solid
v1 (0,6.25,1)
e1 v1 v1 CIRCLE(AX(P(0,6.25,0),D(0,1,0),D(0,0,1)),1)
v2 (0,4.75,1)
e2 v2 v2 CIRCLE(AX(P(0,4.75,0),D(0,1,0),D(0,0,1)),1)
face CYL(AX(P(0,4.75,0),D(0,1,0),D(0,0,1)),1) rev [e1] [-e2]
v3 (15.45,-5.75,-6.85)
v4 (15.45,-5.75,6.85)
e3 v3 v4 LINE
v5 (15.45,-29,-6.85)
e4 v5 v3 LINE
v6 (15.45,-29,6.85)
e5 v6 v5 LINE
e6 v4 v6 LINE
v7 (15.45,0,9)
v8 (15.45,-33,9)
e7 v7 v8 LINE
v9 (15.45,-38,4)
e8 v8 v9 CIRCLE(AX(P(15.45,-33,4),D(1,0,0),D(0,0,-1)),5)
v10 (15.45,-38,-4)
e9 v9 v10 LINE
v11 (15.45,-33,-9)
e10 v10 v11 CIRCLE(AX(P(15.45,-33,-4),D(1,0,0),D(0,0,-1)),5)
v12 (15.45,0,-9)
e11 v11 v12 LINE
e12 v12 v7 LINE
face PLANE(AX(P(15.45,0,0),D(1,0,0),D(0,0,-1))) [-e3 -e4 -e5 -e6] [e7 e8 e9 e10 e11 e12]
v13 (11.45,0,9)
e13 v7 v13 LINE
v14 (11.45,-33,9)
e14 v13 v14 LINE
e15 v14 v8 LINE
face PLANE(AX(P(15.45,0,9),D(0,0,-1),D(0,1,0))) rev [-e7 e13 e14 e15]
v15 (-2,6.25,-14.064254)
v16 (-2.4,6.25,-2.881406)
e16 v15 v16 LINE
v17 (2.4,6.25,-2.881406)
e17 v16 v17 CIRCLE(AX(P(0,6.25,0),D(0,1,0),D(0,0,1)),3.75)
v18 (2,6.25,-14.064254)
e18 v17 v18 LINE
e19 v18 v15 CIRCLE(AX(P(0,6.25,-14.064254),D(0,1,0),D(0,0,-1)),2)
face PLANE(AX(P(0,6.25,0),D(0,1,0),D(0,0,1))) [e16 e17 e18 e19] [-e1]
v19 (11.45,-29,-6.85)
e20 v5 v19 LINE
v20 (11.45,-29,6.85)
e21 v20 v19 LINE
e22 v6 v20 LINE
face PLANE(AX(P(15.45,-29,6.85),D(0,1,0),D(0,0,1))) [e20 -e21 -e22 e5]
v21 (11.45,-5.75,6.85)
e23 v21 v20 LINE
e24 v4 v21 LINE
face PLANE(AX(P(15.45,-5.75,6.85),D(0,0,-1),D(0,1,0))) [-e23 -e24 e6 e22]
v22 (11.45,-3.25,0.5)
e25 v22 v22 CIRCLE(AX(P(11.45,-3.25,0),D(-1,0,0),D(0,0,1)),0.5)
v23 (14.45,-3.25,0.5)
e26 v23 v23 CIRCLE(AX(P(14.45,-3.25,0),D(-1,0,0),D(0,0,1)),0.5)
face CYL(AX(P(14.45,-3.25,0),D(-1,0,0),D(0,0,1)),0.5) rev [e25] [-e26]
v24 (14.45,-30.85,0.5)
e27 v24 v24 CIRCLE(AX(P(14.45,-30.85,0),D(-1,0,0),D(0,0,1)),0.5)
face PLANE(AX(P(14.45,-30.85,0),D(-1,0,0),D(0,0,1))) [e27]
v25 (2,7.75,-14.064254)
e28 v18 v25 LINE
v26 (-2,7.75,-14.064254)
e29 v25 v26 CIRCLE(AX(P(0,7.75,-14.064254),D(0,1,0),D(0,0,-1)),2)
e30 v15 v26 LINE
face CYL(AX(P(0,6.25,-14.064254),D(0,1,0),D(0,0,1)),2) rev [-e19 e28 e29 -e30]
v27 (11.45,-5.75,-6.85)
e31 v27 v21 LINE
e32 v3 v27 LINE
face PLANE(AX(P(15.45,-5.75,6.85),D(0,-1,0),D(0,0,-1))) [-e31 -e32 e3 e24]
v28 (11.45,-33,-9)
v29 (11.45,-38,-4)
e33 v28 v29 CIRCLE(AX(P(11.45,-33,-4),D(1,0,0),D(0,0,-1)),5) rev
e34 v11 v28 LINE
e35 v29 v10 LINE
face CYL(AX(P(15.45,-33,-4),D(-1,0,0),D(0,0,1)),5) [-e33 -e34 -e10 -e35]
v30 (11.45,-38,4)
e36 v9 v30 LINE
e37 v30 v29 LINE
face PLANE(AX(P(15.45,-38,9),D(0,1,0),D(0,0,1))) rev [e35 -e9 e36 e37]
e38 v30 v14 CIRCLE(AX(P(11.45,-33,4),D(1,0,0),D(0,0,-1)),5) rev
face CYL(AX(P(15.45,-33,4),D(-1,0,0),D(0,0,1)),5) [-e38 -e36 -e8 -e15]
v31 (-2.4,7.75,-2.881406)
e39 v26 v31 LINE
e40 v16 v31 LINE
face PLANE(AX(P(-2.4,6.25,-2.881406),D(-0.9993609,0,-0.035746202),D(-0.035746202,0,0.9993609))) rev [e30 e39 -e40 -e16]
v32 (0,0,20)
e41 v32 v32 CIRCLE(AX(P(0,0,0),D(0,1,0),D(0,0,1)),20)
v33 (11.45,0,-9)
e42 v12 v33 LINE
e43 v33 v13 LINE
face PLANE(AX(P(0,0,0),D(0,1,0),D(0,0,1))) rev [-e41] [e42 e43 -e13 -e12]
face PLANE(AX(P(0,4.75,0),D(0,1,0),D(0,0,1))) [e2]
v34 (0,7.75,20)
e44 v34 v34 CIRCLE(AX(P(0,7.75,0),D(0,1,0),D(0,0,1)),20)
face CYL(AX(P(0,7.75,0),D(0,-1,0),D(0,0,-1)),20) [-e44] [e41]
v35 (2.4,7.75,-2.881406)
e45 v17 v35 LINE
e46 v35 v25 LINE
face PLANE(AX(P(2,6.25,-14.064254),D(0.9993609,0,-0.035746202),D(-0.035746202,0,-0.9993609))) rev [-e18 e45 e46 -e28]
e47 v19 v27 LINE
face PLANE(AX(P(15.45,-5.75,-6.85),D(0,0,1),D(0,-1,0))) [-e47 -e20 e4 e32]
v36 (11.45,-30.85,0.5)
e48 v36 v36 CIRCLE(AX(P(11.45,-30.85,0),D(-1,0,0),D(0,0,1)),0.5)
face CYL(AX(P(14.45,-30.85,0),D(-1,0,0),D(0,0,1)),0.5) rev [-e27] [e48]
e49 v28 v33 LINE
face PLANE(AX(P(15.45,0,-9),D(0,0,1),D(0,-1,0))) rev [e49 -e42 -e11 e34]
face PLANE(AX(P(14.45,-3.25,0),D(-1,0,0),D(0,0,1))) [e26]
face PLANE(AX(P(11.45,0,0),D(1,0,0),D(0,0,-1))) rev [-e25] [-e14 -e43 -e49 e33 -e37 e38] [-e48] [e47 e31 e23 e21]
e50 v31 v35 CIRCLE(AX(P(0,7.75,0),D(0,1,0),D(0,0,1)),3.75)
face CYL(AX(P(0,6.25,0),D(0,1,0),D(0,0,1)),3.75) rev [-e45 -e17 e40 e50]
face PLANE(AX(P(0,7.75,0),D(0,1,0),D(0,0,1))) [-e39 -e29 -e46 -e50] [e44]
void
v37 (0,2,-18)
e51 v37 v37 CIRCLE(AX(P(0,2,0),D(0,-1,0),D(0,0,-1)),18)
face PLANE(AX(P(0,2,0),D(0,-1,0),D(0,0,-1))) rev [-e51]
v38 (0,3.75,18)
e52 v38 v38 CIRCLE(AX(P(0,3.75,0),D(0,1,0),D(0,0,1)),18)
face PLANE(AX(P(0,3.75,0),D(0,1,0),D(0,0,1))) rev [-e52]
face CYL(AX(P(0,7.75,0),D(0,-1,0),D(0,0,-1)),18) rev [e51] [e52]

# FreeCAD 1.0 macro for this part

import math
import FreeCAD as App
import Part
import Sketcher
Q = App.Units.Quantity


def edges_at(feature, points):
    """Names of the edges that pass closest to the given points."""
    edges = feature.Shape.Edges
    near = lambda p: min(range(len(edges)), key=lambda i: edges[i].distToShape(Part.Vertex(*p))[0])
    return sorted({f"Edge{near(p) + 1}" for p in points})

doc = App.newDocument("Part")
body = doc.addObject("PartDesign::Body", "Body")

sketch1 = body.newObject("Sketcher::SketchObject", "Sketch")
sketch1.AttachmentSupport = (doc.getObject("XZ_Plane"), [""])
sketch1.MapMode = "FlatFace"
sketch1.addGeometry(Part.Circle(App.Vector(0, 0, 0), App.Vector(0, 0, 1), 20), False)
sketch1.addGeometry(Part.Circle(App.Vector(0, 0, 0), App.Vector(0, 0, 1), 18), False)
sketch1.addConstraint(Sketcher.Constraint("Coincident", 0, 3, -1, 1))
sketch1.addConstraint(Sketcher.Constraint("Coincident", 1, 3, -1, 1))
sketch1.addConstraint(Sketcher.Constraint("Diameter", 0, Q("40 mm")))
sketch1.addConstraint(Sketcher.Constraint("Diameter", 1, Q("36 mm")))
pad1 = body.newObject("PartDesign::Pad", "Pad")
pad1.Profile = sketch1
pad1.Length = 7.75
pad1.Reversed = True

sketch2 = body.newObject("Sketcher::SketchObject", "Sketch001")
sketch2.AttachmentSupport = (doc.getObject("XZ_Plane"), [""])
sketch2.MapMode = "FlatFace"
sketch2.AttachmentOffset = App.Placement(App.Vector(0, 0, -3.75), App.Rotation())
sketch2.addGeometry(Part.Circle(App.Vector(0, 0, 0), App.Vector(0, 0, 1), 18), False)
sketch2.addConstraint(Sketcher.Constraint("Coincident", 0, 3, -1, 1))
sketch2.addConstraint(Sketcher.Constraint("Diameter", 0, Q("36 mm")))
pad2 = body.newObject("PartDesign::Pad", "Pad001")
pad2.Profile = sketch2
pad2.Length = 4
pad2.Reversed = True

sketch3 = body.newObject("Sketcher::SketchObject", "Sketch002")
sketch3.AttachmentSupport = (doc.getObject("XZ_Plane"), [""])
sketch3.MapMode = "FlatFace"
sketch3.AttachmentOffset = App.Placement(App.Vector(0, 0, -7.75), App.Rotation())
sketch3.addGeometry(Part.LineSegment(App.Vector(-2, -14.1, 0), App.Vector(-2.4, -2.9, 0)), False)
sketch3.addGeometry(Part.ArcOfCircle(Part.Circle(App.Vector(0, 0, 0), App.Vector(0, 0, 1), 3.8), math.radians(-50), math.radians(230)), False)
sketch3.addGeometry(Part.LineSegment(App.Vector(2.4, -2.9, 0), App.Vector(2, -14.1, 0)), False)
sketch3.addGeometry(Part.ArcOfCircle(Part.Circle(App.Vector(0, -14.1, 0), App.Vector(0, 0, 1), 2), math.radians(180), math.radians(360)), False)
sketch3.addConstraint(Sketcher.Constraint("Coincident", 0, 2, 1, 2))
sketch3.addConstraint(Sketcher.Constraint("Coincident", 1, 1, 2, 1))
sketch3.addConstraint(Sketcher.Constraint("Coincident", 2, 2, 3, 2))
sketch3.addConstraint(Sketcher.Constraint("Coincident", 3, 1, 0, 1))
sketch3.addConstraint(Sketcher.Constraint("Coincident", 1, 3, -1, 1))
sketch3.addConstraint(Sketcher.Constraint("Symmetric", 2, 2, 3, 1, -2))
sketch3.addConstraint(Sketcher.Constraint("Horizontal", 0, 2, 1, 1))
sketch3.addConstraint(Sketcher.Constraint("Horizontal", 3, 3, 2, 2))
sketch3.addConstraint(Sketcher.Constraint("Radius", 3, Q("2 mm")))
sketch3.addConstraint(Sketcher.Constraint("Radius", 1, Q("3.75 mm")))
sketch3.addConstraint(Sketcher.Constraint("DistanceX", 0, 2, -1, 1, Q("2.4 mm")))
sketch3.addConstraint(Sketcher.Constraint("Distance", 0, Q("11.19 mm")))
pocket1 = body.newObject("PartDesign::Pocket", "Pocket")
pocket1.Profile = sketch3
pocket1.Length = 1.5
pocket1.Reversed = True

sketch4 = body.newObject("Sketcher::SketchObject", "Sketch003")
sketch4.AttachmentSupport = (doc.getObject("XZ_Plane"), [""])
sketch4.MapMode = "FlatFace"
sketch4.AttachmentOffset = App.Placement(App.Vector(0, 0, -6.25), App.Rotation())
sketch4.addGeometry(Part.Circle(App.Vector(0, 0, 0), App.Vector(0, 0, 1), 1), False)
sketch4.addConstraint(Sketcher.Constraint("Coincident", 0, 3, -1, 1))
sketch4.addConstraint(Sketcher.Constraint("Diameter", 0, Q("2 mm")))
pocket2 = body.newObject("PartDesign::Pocket", "Pocket001")
pocket2.Profile = sketch4
pocket2.Length = 1.5
pocket2.Reversed = True
body2 = doc.addObject("PartDesign::Body", "Body001")

sketch5 = body2.newObject("Sketcher::SketchObject", "Sketch004")
sketch5.AttachmentSupport = (doc.getObject("YZ_Plane001"), [""])
sketch5.MapMode = "FlatFace"
sketch5.AttachmentOffset = App.Placement(App.Vector(0, 0, 11.45), App.Rotation())
sketch5.addGeometry(Part.LineSegment(App.Vector(0, 9, 0), App.Vector(-38, 9, 0)), False)
sketch5.addGeometry(Part.LineSegment(App.Vector(-38, 9, 0), App.Vector(-38, -9, 0)), False)
sketch5.addGeometry(Part.LineSegment(App.Vector(-38, -9, 0), App.Vector(0, -9, 0)), False)
sketch5.addGeometry(Part.LineSegment(App.Vector(0, -9, 0), App.Vector(0, 9, 0)), False)
sketch5.addGeometry(Part.LineSegment(App.Vector(-29, -7, 0), App.Vector(-29, 7, 0)), False)
sketch5.addGeometry(Part.LineSegment(App.Vector(-29, 7, 0), App.Vector(-6, 7, 0)), False)
sketch5.addGeometry(Part.LineSegment(App.Vector(-6, 7, 0), App.Vector(-6, -7, 0)), False)
sketch5.addGeometry(Part.LineSegment(App.Vector(-6, -7, 0), App.Vector(-29, -7, 0)), False)
sketch5.addConstraint(Sketcher.Constraint("Coincident", 0, 2, 1, 1))
sketch5.addConstraint(Sketcher.Constraint("Coincident", 1, 2, 2, 1))
sketch5.addConstraint(Sketcher.Constraint("Coincident", 2, 2, 3, 1))
sketch5.addConstraint(Sketcher.Constraint("Coincident", 3, 2, 0, 1))
sketch5.addConstraint(Sketcher.Constraint("Coincident", 4, 2, 5, 1))
sketch5.addConstraint(Sketcher.Constraint("Coincident", 5, 2, 6, 1))
sketch5.addConstraint(Sketcher.Constraint("Coincident", 6, 2, 7, 1))
sketch5.addConstraint(Sketcher.Constraint("Coincident", 7, 2, 4, 1))
sketch5.addConstraint(Sketcher.Constraint("Horizontal", 0))
sketch5.addConstraint(Sketcher.Constraint("Vertical", 1))
sketch5.addConstraint(Sketcher.Constraint("Horizontal", 2))
sketch5.addConstraint(Sketcher.Constraint("Vertical", 3))
sketch5.addConstraint(Sketcher.Constraint("Vertical", 4))
sketch5.addConstraint(Sketcher.Constraint("Horizontal", 5))
sketch5.addConstraint(Sketcher.Constraint("Vertical", 6))
sketch5.addConstraint(Sketcher.Constraint("Horizontal", 7))
sketch5.addConstraint(Sketcher.Constraint("Symmetric", 2, 2, 3, 2, -1, 1))
sketch5.addConstraint(Sketcher.Constraint("DistanceX", 0, 2, 0, 1, Q("38 mm")))
sketch5.addConstraint(Sketcher.Constraint("DistanceY", 1, 2, 1, 1, Q("18 mm")))
sketch5.addConstraint(Sketcher.Constraint("DistanceY", 4, 1, 4, 2, Q("13.7 mm")))
sketch5.addConstraint(Sketcher.Constraint("DistanceX", 4, 2, -1, 1, Q("29 mm")))
sketch5.addConstraint(Sketcher.Constraint("DistanceX", 5, 1, 5, 2, Q("23.25 mm")))
sketch5.addConstraint(Sketcher.Constraint("DistanceY", -1, 1, 4, 2, Q("6.85 mm")))
pad3 = body2.newObject("PartDesign::Pad", "Pad002")
pad3.Profile = sketch5
pad3.Length = 4
body.AllowCompound = True
doc.recompute()

boolean = body.newObject("PartDesign::Boolean", "Boolean")
boolean.Type = "Fuse"
boolean.addObjects([body2])

sketch6 = body.newObject("Sketcher::SketchObject", "Sketch005")
sketch6.AttachmentSupport = (doc.getObject("XZ_Plane"), [""])
sketch6.MapMode = "FlatFace"
sketch6.addGeometry(Part.Circle(App.Vector(0, 0, 0), App.Vector(0, 0, 1), 18), False)
sketch6.addConstraint(Sketcher.Constraint("Coincident", 0, 3, -1, 1))
sketch6.addConstraint(Sketcher.Constraint("Diameter", 0, Q("36 mm")))
pad4 = body.newObject("PartDesign::Pad", "Pad003")
pad4.Profile = sketch6
pad4.Length = 2
pad4.Reversed = True

sketch7 = body.newObject("Sketcher::SketchObject", "Sketch006")
sketch7.AttachmentSupport = (doc.getObject("YZ_Plane"), [""])
sketch7.MapMode = "FlatFace"
sketch7.AttachmentOffset = App.Placement(App.Vector(0, 0, 11.45), App.Rotation())
sketch7.addGeometry(Part.Circle(App.Vector(-30.9, 0, 0), App.Vector(0, 0, 1), 0.5), False)
sketch7.addGeometry(Part.Circle(App.Vector(-3.2, 0, 0), App.Vector(0, 0, 1), 0.5), False)
sketch7.addConstraint(Sketcher.Constraint("Equal", 0, 1))
sketch7.addConstraint(Sketcher.Constraint("PointOnObject", 0, 3, -1))
sketch7.addConstraint(Sketcher.Constraint("PointOnObject", 1, 3, -1))
sketch7.addConstraint(Sketcher.Constraint("Diameter", 0, Q("1 mm")))
sketch7.addConstraint(Sketcher.Constraint("DistanceX", 0, 3, 1, 3, Q("27.6 mm")))
sketch7.addConstraint(Sketcher.Constraint("DistanceX", 0, 3, -1, 1, Q("30.85 mm")))
pocket3 = body.newObject("PartDesign::Pocket", "Pocket002")
pocket3.Profile = sketch7
pocket3.Length = 3
pocket3.Reversed = True
doc.recompute()

fillet = body.newObject("PartDesign::Fillet", "Fillet")
fillet.Base = (pocket3, edges_at(pocket3, [(13.45, -38, 9), (13.45, -38, -9)]))
fillet.Radius = 5

doc.recompute()
